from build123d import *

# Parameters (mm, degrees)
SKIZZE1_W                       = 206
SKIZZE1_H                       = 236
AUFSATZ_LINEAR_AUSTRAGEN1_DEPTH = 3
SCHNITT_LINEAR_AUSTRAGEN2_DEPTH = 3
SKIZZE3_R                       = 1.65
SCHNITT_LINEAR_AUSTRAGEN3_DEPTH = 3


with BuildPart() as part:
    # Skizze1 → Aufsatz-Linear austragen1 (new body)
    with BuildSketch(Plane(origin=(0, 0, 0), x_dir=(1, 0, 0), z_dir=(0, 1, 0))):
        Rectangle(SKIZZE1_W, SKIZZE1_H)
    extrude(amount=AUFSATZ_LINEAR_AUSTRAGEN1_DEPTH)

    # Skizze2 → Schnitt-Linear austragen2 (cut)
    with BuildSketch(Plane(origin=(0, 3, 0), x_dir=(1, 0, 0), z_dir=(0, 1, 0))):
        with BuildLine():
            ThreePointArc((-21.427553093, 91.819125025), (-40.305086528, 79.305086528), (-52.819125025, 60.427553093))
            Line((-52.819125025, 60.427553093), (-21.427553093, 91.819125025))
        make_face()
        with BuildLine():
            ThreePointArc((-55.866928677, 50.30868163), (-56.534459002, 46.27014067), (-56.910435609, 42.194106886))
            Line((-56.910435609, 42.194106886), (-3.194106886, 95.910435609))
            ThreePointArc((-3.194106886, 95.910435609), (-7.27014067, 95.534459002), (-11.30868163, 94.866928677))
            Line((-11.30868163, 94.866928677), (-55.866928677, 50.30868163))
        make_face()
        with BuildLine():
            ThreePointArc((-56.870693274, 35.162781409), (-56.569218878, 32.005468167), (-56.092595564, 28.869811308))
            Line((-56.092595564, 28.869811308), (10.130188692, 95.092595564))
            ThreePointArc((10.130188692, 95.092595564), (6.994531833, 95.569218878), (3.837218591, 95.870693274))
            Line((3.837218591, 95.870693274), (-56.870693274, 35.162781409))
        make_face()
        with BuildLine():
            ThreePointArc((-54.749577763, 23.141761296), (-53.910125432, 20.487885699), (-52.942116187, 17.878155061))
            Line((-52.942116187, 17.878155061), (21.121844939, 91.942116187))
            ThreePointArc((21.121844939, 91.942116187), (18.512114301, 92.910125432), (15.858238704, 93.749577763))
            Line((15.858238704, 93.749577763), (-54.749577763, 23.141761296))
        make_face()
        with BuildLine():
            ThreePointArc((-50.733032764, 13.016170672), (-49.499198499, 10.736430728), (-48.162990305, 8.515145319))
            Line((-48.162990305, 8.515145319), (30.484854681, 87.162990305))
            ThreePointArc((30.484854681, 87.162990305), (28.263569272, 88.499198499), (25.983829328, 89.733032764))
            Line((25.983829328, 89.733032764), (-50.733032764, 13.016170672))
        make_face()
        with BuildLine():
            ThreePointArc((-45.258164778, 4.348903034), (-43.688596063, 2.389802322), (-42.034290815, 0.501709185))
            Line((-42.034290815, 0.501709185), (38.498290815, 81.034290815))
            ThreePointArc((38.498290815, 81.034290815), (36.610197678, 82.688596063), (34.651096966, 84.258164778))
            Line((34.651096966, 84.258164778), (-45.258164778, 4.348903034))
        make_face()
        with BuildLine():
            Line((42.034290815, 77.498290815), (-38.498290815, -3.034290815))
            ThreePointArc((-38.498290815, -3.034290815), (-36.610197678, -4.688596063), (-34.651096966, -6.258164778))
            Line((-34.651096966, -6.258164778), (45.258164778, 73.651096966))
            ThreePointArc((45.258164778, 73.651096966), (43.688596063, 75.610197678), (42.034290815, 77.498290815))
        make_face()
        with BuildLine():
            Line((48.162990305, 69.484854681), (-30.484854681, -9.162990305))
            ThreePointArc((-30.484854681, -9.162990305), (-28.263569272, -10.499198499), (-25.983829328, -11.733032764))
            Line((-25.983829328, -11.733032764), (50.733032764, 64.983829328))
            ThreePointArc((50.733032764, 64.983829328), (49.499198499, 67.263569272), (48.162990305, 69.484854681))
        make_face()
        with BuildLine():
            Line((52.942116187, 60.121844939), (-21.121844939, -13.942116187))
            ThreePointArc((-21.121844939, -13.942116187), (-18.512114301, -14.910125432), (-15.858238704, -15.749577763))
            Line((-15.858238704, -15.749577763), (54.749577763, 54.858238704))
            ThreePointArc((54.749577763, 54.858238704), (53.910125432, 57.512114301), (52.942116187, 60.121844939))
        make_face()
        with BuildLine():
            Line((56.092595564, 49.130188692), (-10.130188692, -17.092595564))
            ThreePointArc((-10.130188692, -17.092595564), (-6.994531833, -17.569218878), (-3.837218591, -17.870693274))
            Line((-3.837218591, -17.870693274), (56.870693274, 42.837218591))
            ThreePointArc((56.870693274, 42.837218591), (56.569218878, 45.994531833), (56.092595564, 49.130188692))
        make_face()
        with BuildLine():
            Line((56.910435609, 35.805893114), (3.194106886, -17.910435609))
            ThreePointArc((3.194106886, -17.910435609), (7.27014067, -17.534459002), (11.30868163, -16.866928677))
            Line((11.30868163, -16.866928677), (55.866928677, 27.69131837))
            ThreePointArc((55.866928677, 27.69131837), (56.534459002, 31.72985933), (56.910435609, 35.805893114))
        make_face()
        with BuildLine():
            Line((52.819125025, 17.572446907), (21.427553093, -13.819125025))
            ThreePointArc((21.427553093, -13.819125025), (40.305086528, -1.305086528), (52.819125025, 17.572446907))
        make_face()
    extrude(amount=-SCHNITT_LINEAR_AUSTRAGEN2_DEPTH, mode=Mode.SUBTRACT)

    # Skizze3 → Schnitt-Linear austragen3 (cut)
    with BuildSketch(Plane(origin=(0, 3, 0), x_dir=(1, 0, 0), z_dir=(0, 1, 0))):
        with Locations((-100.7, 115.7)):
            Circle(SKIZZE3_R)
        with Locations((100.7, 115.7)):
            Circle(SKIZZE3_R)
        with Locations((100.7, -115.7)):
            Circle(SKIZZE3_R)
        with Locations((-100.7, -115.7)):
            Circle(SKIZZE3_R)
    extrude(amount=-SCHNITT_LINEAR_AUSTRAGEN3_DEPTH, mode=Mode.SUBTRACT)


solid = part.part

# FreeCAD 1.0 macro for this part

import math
import FreeCAD as App
import Part
import Sketcher
Q = App.Units.Quantity

doc = App.newDocument("Part")
params = doc.addObject("Spreadsheet::Sheet", "Params")
for row, (alias, value) in enumerate([
    ("sketch1_width", "206 mm"),
    ("sketch1_height", "236 mm"),
    ("pad1_length", "3 mm"),
    ("sketch2_radius", "57 mm"),
    ("pocket1_length", "3 mm"),
    ("sketch3_diameter", "3.3 mm"),
    ("pocket2_length", "3 mm"),
], start=1):
    params.set(f"A{row}", alias)
    params.set(f"B{row}", "=" + value)
    params.setAlias(f"B{row}", alias)

body = doc.addObject("PartDesign::Body", "Body")

sketch1 = doc.addObject("Sketcher::SketchObject", "Sketch")
body.addObject(sketch1)
sketch1.AttachmentSupport = (doc.XZ_Plane, [""])
sketch1.MapMode = "FlatFace"
sketch1.addGeometry(Part.LineSegment(App.Vector(-103, -118, 0), App.Vector(-103, 118, 0)), False)
sketch1.addGeometry(Part.LineSegment(App.Vector(-103, 118, 0), App.Vector(103, 118, 0)), False)
sketch1.addGeometry(Part.LineSegment(App.Vector(103, 118, 0), App.Vector(103, -118, 0)), False)
sketch1.addGeometry(Part.LineSegment(App.Vector(103, -118, 0), App.Vector(-103, -118, 0)), False)
sketch1.addConstraint(Sketcher.Constraint("Coincident", 0, 2, 1, 1))
sketch1.addConstraint(Sketcher.Constraint("Coincident", 1, 2, 2, 1))
sketch1.addConstraint(Sketcher.Constraint("Coincident", 2, 2, 3, 1))
sketch1.addConstraint(Sketcher.Constraint("Coincident", 3, 2, 0, 1))
sketch1.addConstraint(Sketcher.Constraint("Vertical", 0))
sketch1.addConstraint(Sketcher.Constraint("Horizontal", 1))
sketch1.addConstraint(Sketcher.Constraint("Vertical", 2))
sketch1.addConstraint(Sketcher.Constraint("Horizontal", 3))
sketch1.addConstraint(Sketcher.Constraint("Symmetric", 0, 2, 2, 2, -1, 1))
sketch1.addConstraint(Sketcher.Constraint("DistanceX", 1, 1, 1, 2, 206.0))
sketch1.addConstraint(Sketcher.Constraint("DistanceY", 0, 1, 0, 2, 236.0))
sketch1.setExpression("Constraints[9]", "Params.sketch1_width")
sketch1.setExpression("Constraints[10]", "Params.sketch1_height")
pad1 = doc.addObject("PartDesign::Pad", "Pad")
body.addObject(pad1)
pad1.Profile = sketch1
pad1.setExpression("Length", "Params.pad1_length")
pad1.Reversed = True

sketch2 = doc.addObject("Sketcher::SketchObject", "Sketch001")
body.addObject(sketch2)
sketch2.AttachmentSupport = (doc.XZ_Plane, [""])
sketch2.MapMode = "FlatFace"
sketch2.AttachmentOffset = App.Placement(App.Vector(0, 0, -3), App.Rotation())
sketch2.addGeometry(Part.ArcOfCircle(Part.Circle(App.Vector(0, -39, 0), App.Vector(0, 0, 1), 57), math.radians(-158), math.radians(-112)), False)
sketch2.addGeometry(Part.LineSegment(App.Vector(-53, -60, 0), App.Vector(-21, -92, 0)), False)
sketch2.addGeometry(Part.ArcOfCircle(Part.Circle(App.Vector(0, -39, 0), App.Vector(0, 0, 1), 57), math.radians(-176.79), math.radians(-168.56)), False)
sketch2.addGeometry(Part.LineSegment(App.Vector(-57, -42, 0), App.Vector(-3, -96, 0)), False)
sketch2.addGeometry(Part.ArcOfCircle(Part.Circle(App.Vector(0, -39, 0), App.Vector(0, 0, 1), 57), math.radians(-101.44), math.radians(-93.21)), False)
sketch2.addGeometry(Part.LineSegment(App.Vector(-11, -95, 0), App.Vector(-56, -50, 0)), False)
sketch2.addGeometry(Part.ArcOfCircle(Part.Circle(App.Vector(0, -39, 0), App.Vector(0, 0, 1), 57), math.radians(169.76), math.radians(176.14)), False)
sketch2.addGeometry(Part.LineSegment(App.Vector(-56, -29, 0), App.Vector(10, -95, 0)), False)
sketch2.addGeometry(Part.ArcOfCircle(Part.Circle(App.Vector(0, -39, 0), App.Vector(0, 0, 1), 57), math.radians(-86.14), math.radians(-79.76)), False)
sketch2.addGeometry(Part.LineSegment(App.Vector(4, -96, 0), App.Vector(-57, -35, 0)), False)
sketch2.addGeometry(Part.ArcOfCircle(Part.Circle(App.Vector(0, -39, 0), App.Vector(0, 0, 1), 57), math.radians(158.25), math.radians(163.85)), False)
sketch2.addGeometry(Part.LineSegment(App.Vector(-53, -18, 0), App.Vector(21, -92, 0)), False)
sketch2.addGeometry(Part.ArcOfCircle(Part.Circle(App.Vector(0, -39, 0), App.Vector(0, 0, 1), 57), math.radians(-73.85), math.radians(-68.25)), False)
sketch2.addGeometry(Part.LineSegment(App.Vector(16, -94, 0), App.Vector(-55, -23, 0)), False)
sketch2.addGeometry(Part.ArcOfCircle(Part.Circle(App.Vector(0, -39, 0), App.Vector(0, 0, 1), 57), math.radians(147.67), math.radians(152.88)), False)
sketch2.addGeometry(Part.LineSegment(App.Vector(-48, -9, 0), App.Vector(30, -87, 0)), False)
sketch2.addGeometry(Part.ArcOfCircle(Part.Circle(App.Vector(0, -39, 0), App.Vector(0, 0, 1), 57), math.radians(-62.88), math.radians(-57.67)), False)
sketch2.addGeometry(Part.LineSegment(App.Vector(26, -90, 0), App.Vector(-51, -13, 0)), False)
sketch2.addGeometry(Part.ArcOfCircle(Part.Circle(App.Vector(0, -39, 0), App.Vector(0, 0, 1), 57), math.radians(137.51), math.radians(142.56)), False)
sketch2.addGeometry(Part.LineSegment(App.Vector(-42, -1, 0), App.Vector(38, -81, 0)), False)
sketch2.addGeometry(Part.ArcOfCircle(Part.Circle(App.Vector(0, -39, 0), App.Vector(0, 0, 1), 57), math.radians(-52.56), math.radians(-47.51)), False)
sketch2.addGeometry(Part.LineSegment(App.Vector(35, -84, 0), App.Vector(-45, -4, 0)), False)
sketch2.addGeometry(Part.LineSegment(App.Vector(42, -77, 0), App.Vector(-38, 3, 0)), False)
sketch2.addGeometry(Part.ArcOfCircle(Part.Circle(App.Vector(0, -39, 0), App.Vector(0, 0, 1), 57), math.radians(127.44), math.radians(132.49)), False)
sketch2.addGeometry(Part.LineSegment(App.Vector(-35, 6, 0), App.Vector(45, -74, 0)), False)
sketch2.addGeometry(Part.ArcOfCircle(Part.Circle(App.Vector(0, -39, 0), App.Vector(0, 0, 1), 57), math.radians(-42.49), math.radians(-37.44)), False)
sketch2.addGeometry(Part.LineSegment(App.Vector(48, -69, 0), App.Vector(-30, 9, 0)), False)
sketch2.addGeometry(Part.ArcOfCircle(Part.Circle(App.Vector(0, -39, 0), App.Vector(0, 0, 1), 57), math.radians(117.12), math.radians(122.33)), False)
sketch2.addGeometry(Part.LineSegment(App.Vector(-26, 12, 0), App.Vector(51, -65, 0)), False)
sketch2.addGeometry(Part.ArcOfCircle(Part.Circle(App.Vector(0, -39, 0), App.Vector(0, 0, 1), 57), math.radians(-32.33), math.radians(-27.12)), False)
sketch2.addGeometry(Part.LineSegment(App.Vector(53, -60, 0), App.Vector(-21, 14, 0)), False)
sketch2.addGeometry(Part.ArcOfCircle(Part.Circle(App.Vector(0, -39, 0), App.Vector(0, 0, 1), 57), math.radians(106.15), math.radians(111.75)), False)
sketch2.addGeometry(Part.LineSegment(App.Vector(-16, 16, 0), App.Vector(55, -55, 0)), False)
sketch2.addGeometry(Part.ArcOfCircle(Part.Circle(App.Vector(0, -39, 0), App.Vector(0, 0, 1), 57), math.radians(-21.75), math.radians(-16.15)), False)
sketch2.addGeometry(Part.LineSegment(App.Vector(56, -49, 0), App.Vector(-10, 17, 0)), False)
sketch2.addGeometry(Part.ArcOfCircle(Part.Circle(App.Vector(0, -39, 0), App.Vector(0, 0, 1), 57), math.radians(93.86), math.radians(100.24)), False)
sketch2.addGeometry(Part.LineSegment(App.Vector(-4, 18, 0), App.Vector(57, -43, 0)), False)
sketch2.addGeometry(Part.ArcOfCircle(Part.Circle(App.Vector(0, -39, 0), App.Vector(0, 0, 1), 57), math.radians(-10.24), math.radians(-3.86)), False)
sketch2.addGeometry(Part.LineSegment(App.Vector(57, -36, 0), App.Vector(3, 18, 0)), False)
sketch2.addGeometry(Part.ArcOfCircle(Part.Circle(App.Vector(0, -39, 0), App.Vector(0, 0, 1), 57), math.radians(78.56), math.radians(86.79)), False)
sketch2.addGeometry(Part.LineSegment(App.Vector(11, 17, 0), App.Vector(56, -28, 0)), False)
sketch2.addGeometry(Part.ArcOfCircle(Part.Circle(App.Vector(0, -39, 0), App.Vector(0, 0, 1), 57), math.radians(3.21), math.radians(11.44)), False)
sketch2.addGeometry(Part.LineSegment(App.Vector(53, -18, 0), App.Vector(21, 14, 0)), False)
sketch2.addGeometry(Part.ArcOfCircle(Part.Circle(App.Vector(0, -39, 0), App.Vector(0, 0, 1), 57), math.radians(22), math.radians(68)), False)
sketch2.addConstraint(Sketcher.Constraint("Coincident", 0, 1, 1, 1))
sketch2.addConstraint(Sketcher.Constraint("Coincident", 1, 2, 0, 2))
sketch2.addConstraint(Sketcher.Constraint("Coincident", 2, 1, 3, 1))
sketch2.addConstraint(Sketcher.Constraint("Coincident", 3, 2, 4, 2))
sketch2.addConstraint(Sketcher.Constraint("Coincident", 4, 1, 5, 1))
sketch2.addConstraint(Sketcher.Constraint("Coincident", 5, 2, 2, 2))
sketch2.addConstraint(Sketcher.Constraint("Coincident", 6, 1, 7, 1))
sketch2.addConstraint(Sketcher.Constraint("Coincident", 7, 2, 8, 2))
sketch2.addConstraint(Sketcher.Constraint("Coincident", 8, 1, 9, 1))
sketch2.addConstraint(Sketcher.Constraint("Coincident", 9, 2, 6, 2))
sketch2.addConstraint(Sketcher.Constraint("Coincident", 10, 1, 11, 1))
sketch2.addConstraint(Sketcher.Constraint("Coincident", 11, 2, 12, 2))
sketch2.addConstraint(Sketcher.Constraint("Coincident", 12, 1, 13, 1))
sketch2.addConstraint(Sketcher.Constraint("Coincident", 13, 2, 10, 2))
sketch2.addConstraint(Sketcher.Constraint("Coincident", 14, 1, 15, 1))
sketch2.addConstraint(Sketcher.Constraint("Coincident", 15, 2, 16, 2))
sketch2.addConstraint(Sketcher.Constraint("Coincident", 16, 1, 17, 1))
sketch2.addConstraint(Sketcher.Constraint("Coincident", 17, 2, 14, 2))
sketch2.addConstraint(Sketcher.Constraint("Coincident", 18, 1, 19, 1))
sketch2.addConstraint(Sketcher.Constraint("Coincident", 19, 2, 20, 2))
sketch2.addConstraint(Sketcher.Constraint("Coincident", 20, 1, 21, 1))
sketch2.addConstraint(Sketcher.Constraint("Coincident", 21, 2, 18, 2))
sketch2.addConstraint(Sketcher.Constraint("Coincident", 22, 2, 23, 2))
sketch2.addConstraint(Sketcher.Constraint("Coincident", 23, 1, 24, 1))
sketch2.addConstraint(Sketcher.Constraint("Coincident", 24, 2, 25, 2))
sketch2.addConstraint(Sketcher.Constraint("Coincident", 25, 1, 22, 1))
sketch2.addConstraint(Sketcher.Constraint("Coincident", 26, 2, 27, 2))
sketch2.addConstraint(Sketcher.Constraint("Coincident", 27, 1, 28, 1))
sketch2.addConstraint(Sketcher.Constraint("Coincident", 28, 2, 29, 2))
sketch2.addConstraint(Sketcher.Constraint("Coincident", 29, 1, 26, 1))
sketch2.addConstraint(Sketcher.Constraint("Coincident", 30, 2, 31, 2))
sketch2.addConstraint(Sketcher.Constraint("Coincident", 31, 1, 32, 1))
sketch2.addConstraint(Sketcher.Constraint("Coincident", 32, 2, 33, 2))
sketch2.addConstraint(Sketcher.Constraint("Coincident", 33, 1, 30, 1))
sketch2.addConstraint(Sketcher.Constraint("Coincident", 34, 2, 35, 2))
sketch2.addConstraint(Sketcher.Constraint("Coincident", 35, 1, 36, 1))
sketch2.addConstraint(Sketcher.Constraint("Coincident", 36, 2, 37, 2))
sketch2.addConstraint(Sketcher.Constraint("Coincident", 37, 1, 34, 1))
sketch2.addConstraint(Sketcher.Constraint("Coincident", 38, 2, 39, 2))
sketch2.addConstraint(Sketcher.Constraint("Coincident", 39, 1, 40, 1))
sketch2.addConstraint(Sketcher.Constraint("Coincident", 40, 2, 41, 2))
sketch2.addConstraint(Sketcher.Constraint("Coincident", 41, 1, 38, 1))
sketch2.addConstraint(Sketcher.Constraint("Coincident", 42, 1, 43, 1))
sketch2.addConstraint(Sketcher.Constraint("Coincident", 43, 2, 42, 2))
sketch2.addConstraint(Sketcher.Constraint("Coincident", 2, 3, 0, 3))
sketch2.addConstraint(Sketcher.Constraint("Coincident", 4, 3, 0, 3))
sketch2.addConstraint(Sketcher.Constraint("Coincident", 6, 3, 0, 3))
sketch2.addConstraint(Sketcher.Constraint("Coincident", 8, 3, 0, 3))
sketch2.addConstraint(Sketcher.Constraint("Coincident", 10, 3, 0, 3))
sketch2.addConstraint(Sketcher.Constraint("Coincident", 12, 3, 0, 3))
sketch2.addConstraint(Sketcher.Constraint("Coincident", 14, 3, 0, 3))
sketch2.addConstraint(Sketcher.Constraint("Coincident", 16, 3, 0, 3))
sketch2.addConstraint(Sketcher.Constraint("Coincident", 18, 3, 0, 3))
sketch2.addConstraint(Sketcher.Constraint("Coincident", 20, 3, 0, 3))
sketch2.addConstraint(Sketcher.Constraint("Coincident", 23, 3, 0, 3))
sketch2.addConstraint(Sketcher.Constraint("Coincident", 25, 3, 0, 3))
sketch2.addConstraint(Sketcher.Constraint("Coincident", 27, 3, 0, 3))
sketch2.addConstraint(Sketcher.Constraint("Coincident", 29, 3, 0, 3))
sketch2.addConstraint(Sketcher.Constraint("Coincident", 31, 3, 0, 3))
sketch2.addConstraint(Sketcher.Constraint("Coincident", 33, 3, 0, 3))
sketch2.addConstraint(Sketcher.Constraint("Coincident", 35, 3, 0, 3))
sketch2.addConstraint(Sketcher.Constraint("Coincident", 37, 3, 0, 3))
sketch2.addConstraint(Sketcher.Constraint("Coincident", 39, 3, 0, 3))
sketch2.addConstraint(Sketcher.Constraint("Coincident", 41, 3, 0, 3))
sketch2.addConstraint(Sketcher.Constraint("Coincident", 43, 3, 0, 3))
sketch2.addConstraint(Sketcher.Constraint("Equal", 0, 2))
sketch2.addConstraint(Sketcher.Constraint("Equal", 2, 4))
sketch2.addConstraint(Sketcher.Constraint("Equal", 4, 6))
sketch2.addConstraint(Sketcher.Constraint("Equal", 6, 8))
sketch2.addConstraint(Sketcher.Constraint("Equal", 8, 10))
sketch2.addConstraint(Sketcher.Constraint("Equal", 10, 12))
sketch2.addConstraint(Sketcher.Constraint("Equal", 12, 14))
sketch2.addConstraint(Sketcher.Constraint("Equal", 14, 16))
sketch2.addConstraint(Sketcher.Constraint("Equal", 16, 18))
sketch2.addConstraint(Sketcher.Constraint("Equal", 18, 20))
sketch2.addConstraint(Sketcher.Constraint("Equal", 20, 23))
sketch2.addConstraint(Sketcher.Constraint("Equal", 23, 25))
sketch2.addConstraint(Sketcher.Constraint("Equal", 25, 27))
sketch2.addConstraint(Sketcher.Constraint("Equal", 27, 29))
sketch2.addConstraint(Sketcher.Constraint("Equal", 29, 31))
sketch2.addConstraint(Sketcher.Constraint("Equal", 31, 33))
sketch2.addConstraint(Sketcher.Constraint("Equal", 33, 35))
sketch2.addConstraint(Sketcher.Constraint("Equal", 35, 37))
sketch2.addConstraint(Sketcher.Constraint("Equal", 37, 39))
sketch2.addConstraint(Sketcher.Constraint("Equal", 39, 41))
sketch2.addConstraint(Sketcher.Constraint("Equal", 41, 43))
sketch2.addConstraint(Sketcher.Constraint("PointOnObject", 0, 3, -2))
sketch2.addConstraint(Sketcher.Constraint("Parallel", 1, 3))
sketch2.addConstraint(Sketcher.Constraint("Parallel", 3, 5))
sketch2.addConstraint(Sketcher.Constraint("Parallel", 5, 7))
sketch2.addConstraint(Sketcher.Constraint("Parallel", 7, 9))
sketch2.addConstraint(Sketcher.Constraint("Parallel", 9, 11))
sketch2.addConstraint(Sketcher.Constraint("Parallel", 11, 13))
sketch2.addConstraint(Sketcher.Constraint("Parallel", 13, 15))
sketch2.addConstraint(Sketcher.Constraint("Parallel", 15, 17))
sketch2.addConstraint(Sketcher.Constraint("Parallel", 17, 19))
sketch2.addConstraint(Sketcher.Constraint("Parallel", 19, 21))
sketch2.addConstraint(Sketcher.Constraint("Parallel", 21, 22))
sketch2.addConstraint(Sketcher.Constraint("Parallel", 22, 24))
sketch2.addConstraint(Sketcher.Constraint("Parallel", 24, 26))
sketch2.addConstraint(Sketcher.Constraint("Parallel", 26, 28))
sketch2.addConstraint(Sketcher.Constraint("Parallel", 28, 30))
sketch2.addConstraint(Sketcher.Constraint("Parallel", 30, 32))
sketch2.addConstraint(Sketcher.Constraint("Parallel", 32, 34))
sketch2.addConstraint(Sketcher.Constraint("Parallel", 34, 36))
sketch2.addConstraint(Sketcher.Constraint("Parallel", 36, 38))
sketch2.addConstraint(Sketcher.Constraint("Parallel", 38, 40))
sketch2.addConstraint(Sketcher.Constraint("Parallel", 40, 42))
sketch2.addConstraint(Sketcher.Constraint("Equal", 19, 22))
sketch2.addConstraint(Sketcher.Constraint("Equal", 21, 24))
sketch2.addConstraint(Sketcher.Constraint("Equal", 15, 26))
sketch2.addConstraint(Sketcher.Constraint("Equal", 17, 28))
sketch2.addConstraint(Sketcher.Constraint("Equal", 11, 30))
sketch2.addConstraint(Sketcher.Constraint("Equal", 13, 32))
sketch2.addConstraint(Sketcher.Constraint("Equal", 7, 34))
sketch2.addConstraint(Sketcher.Constraint("Equal", 9, 36))
sketch2.addConstraint(Sketcher.Constraint("Equal", 3, 38))
sketch2.addConstraint(Sketcher.Constraint("Equal", 5, 40))
sketch2.addConstraint(Sketcher.Constraint("Equal", 1, 42))
sketch2.addConstraint(Sketcher.Constraint("Radius", 0, 57.0))
sketch2.addConstraint(Sketcher.Constraint("Angle", 1, Q("-45 deg")))
sketch2.addConstraint(Sketcher.Constraint("DistanceY", 0, 3, -1, 1, 39.0))
sketch2.addConstraint(Sketcher.Constraint("Distance", 3, 75.966361))
sketch2.addConstraint(Sketcher.Constraint("Distance", 7, 93.65316))
sketch2.addConstraint(Sketcher.Constraint("Distance", 11, 104.742258))
sketch2.addConstraint(Sketcher.Constraint("Distance", 13, 99.854532))
sketch2.addConstraint(Sketcher.Constraint("Distance", 15, 111.224849))
sketch2.addConstraint(Sketcher.Constraint("Distance", 19, 113.890269))
sketch2.addConstraint(Sketcher.Constraint("Distance", 21, 113.008762))
sketch2.addConstraint(Sketcher.Constraint("DistanceX", 4, 1, -1, 1, 11.308682))
sketch2.addConstraint(Sketcher.Constraint("DistanceX", -1, 1, 8, 1, 3.837219))
sketch2.addConstraint(Sketcher.Constraint("DistanceX", -1, 1, 16, 1, 25.983829))
sketch2.addConstraint(Sketcher.Constraint("Distance", 1, 44.394387))
sketch2.setExpression("Constraints[119]", "Params.sketch2_radius")
pocket1 = doc.addObject("PartDesign::Pocket", "Pocket")
body.addObject(pocket1)
pocket1.Profile = sketch2
pocket1.setExpression("Length", "Params.pocket1_length")
pocket1.Reversed = True

sketch3 = doc.addObject("Sketcher::SketchObject", "Sketch002")
body.addObject(sketch3)
sketch3.AttachmentSupport = (doc.XZ_Plane, [""])
sketch3.MapMode = "FlatFace"
sketch3.AttachmentOffset = App.Placement(App.Vector(0, 0, -3), App.Rotation())
sketch3.addGeometry(Part.Circle(App.Vector(-100.7, -115.7, 0), App.Vector(0, 0, 1), 1.6), False)
sketch3.addGeometry(Part.Circle(App.Vector(100.7, -115.7, 0), App.Vector(0, 0, 1), 1.6), False)
sketch3.addGeometry(Part.Circle(App.Vector(100.7, 115.7, 0), App.Vector(0, 0, 1), 1.6), False)
sketch3.addGeometry(Part.Circle(App.Vector(-100.7, 115.7, 0), App.Vector(0, 0, 1), 1.6), False)
sketch3.addConstraint(Sketcher.Constraint("Equal", 0, 1))
sketch3.addConstraint(Sketcher.Constraint("Equal", 1, 2))
sketch3.addConstraint(Sketcher.Constraint("Equal", 2, 3))
sketch3.addConstraint(Sketcher.Constraint("Symmetric", 0, 3, 2, 3, -1, 1))
sketch3.addConstraint(Sketcher.Constraint("Symmetric", 1, 3, 3, 3, -1, 1))
sketch3.addConstraint(Sketcher.Constraint("Symmetric", 0, 3, 1, 3, -2))
sketch3.addConstraint(Sketcher.Constraint("Diameter", 0, 3.3))
sketch3.addConstraint(Sketcher.Constraint("DistanceX", 0, 3, -1, 1, 100.7))
sketch3.addConstraint(Sketcher.Constraint("DistanceY", 0, 3, -1, 1, 115.7))
sketch3.setExpression("Constraints[6]", "Params.sketch3_diameter")
pocket2 = doc.addObject("PartDesign::Pocket", "Pocket001")
body.addObject(pocket2)
pocket2.Profile = sketch3
pocket2.setExpression("Length", "Params.pocket2_length")
pocket2.Reversed = True

doc.recompute()
